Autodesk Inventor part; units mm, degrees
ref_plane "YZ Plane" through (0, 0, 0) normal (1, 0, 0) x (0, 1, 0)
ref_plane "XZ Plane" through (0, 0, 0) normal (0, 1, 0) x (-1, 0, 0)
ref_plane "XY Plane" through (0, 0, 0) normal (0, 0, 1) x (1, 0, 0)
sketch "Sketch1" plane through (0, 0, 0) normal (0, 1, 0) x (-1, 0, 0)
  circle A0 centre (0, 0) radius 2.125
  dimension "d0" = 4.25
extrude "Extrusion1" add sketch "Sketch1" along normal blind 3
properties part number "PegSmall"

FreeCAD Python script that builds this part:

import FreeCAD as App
import Part
import Sketcher
from FreeCAD import Vector
Q = App.Units.Quantity

doc = App.newDocument("Part")
params = doc.addObject("Spreadsheet::Sheet", "Params")
for row, (alias, value) in enumerate([
    ("sketch1_diameter", "4.25 mm"),
    ("pad1_length", "3 mm"),
], start=1):
    params.set(f"A{row}", alias)
    params.set(f"B{row}", "=" + value)
    params.setAlias(f"B{row}", alias)

body = doc.addObject("PartDesign::Body", "Body")

# Sketch on XZ plane
sketch1 = body.newObject("Sketcher::SketchObject", "Sketch")
sketch1.AttachmentSupport = (doc.getObject("XZ_Plane"), [""])
sketch1.MapMode = "FlatFace"
sketch1.addGeometry(Part.Circle(Vector(0, 0, 0), Vector(0, 0, 1), 2.1), False)
sketch1.addConstraint([
    Sketcher.Constraint("Coincident", 0, 3, -1, 1),
    Sketcher.Constraint("Diameter", 0, Q("4.25 mm")),
])
sketch1.setExpression("Constraints[1]", "Params.sketch1_diameter")
pad1 = body.newObject("PartDesign::Pad", "Pad")
pad1.Profile = sketch1
pad1.setExpression("Length", "Params.pad1_length")
pad1.Reversed = True

doc.recompute()
